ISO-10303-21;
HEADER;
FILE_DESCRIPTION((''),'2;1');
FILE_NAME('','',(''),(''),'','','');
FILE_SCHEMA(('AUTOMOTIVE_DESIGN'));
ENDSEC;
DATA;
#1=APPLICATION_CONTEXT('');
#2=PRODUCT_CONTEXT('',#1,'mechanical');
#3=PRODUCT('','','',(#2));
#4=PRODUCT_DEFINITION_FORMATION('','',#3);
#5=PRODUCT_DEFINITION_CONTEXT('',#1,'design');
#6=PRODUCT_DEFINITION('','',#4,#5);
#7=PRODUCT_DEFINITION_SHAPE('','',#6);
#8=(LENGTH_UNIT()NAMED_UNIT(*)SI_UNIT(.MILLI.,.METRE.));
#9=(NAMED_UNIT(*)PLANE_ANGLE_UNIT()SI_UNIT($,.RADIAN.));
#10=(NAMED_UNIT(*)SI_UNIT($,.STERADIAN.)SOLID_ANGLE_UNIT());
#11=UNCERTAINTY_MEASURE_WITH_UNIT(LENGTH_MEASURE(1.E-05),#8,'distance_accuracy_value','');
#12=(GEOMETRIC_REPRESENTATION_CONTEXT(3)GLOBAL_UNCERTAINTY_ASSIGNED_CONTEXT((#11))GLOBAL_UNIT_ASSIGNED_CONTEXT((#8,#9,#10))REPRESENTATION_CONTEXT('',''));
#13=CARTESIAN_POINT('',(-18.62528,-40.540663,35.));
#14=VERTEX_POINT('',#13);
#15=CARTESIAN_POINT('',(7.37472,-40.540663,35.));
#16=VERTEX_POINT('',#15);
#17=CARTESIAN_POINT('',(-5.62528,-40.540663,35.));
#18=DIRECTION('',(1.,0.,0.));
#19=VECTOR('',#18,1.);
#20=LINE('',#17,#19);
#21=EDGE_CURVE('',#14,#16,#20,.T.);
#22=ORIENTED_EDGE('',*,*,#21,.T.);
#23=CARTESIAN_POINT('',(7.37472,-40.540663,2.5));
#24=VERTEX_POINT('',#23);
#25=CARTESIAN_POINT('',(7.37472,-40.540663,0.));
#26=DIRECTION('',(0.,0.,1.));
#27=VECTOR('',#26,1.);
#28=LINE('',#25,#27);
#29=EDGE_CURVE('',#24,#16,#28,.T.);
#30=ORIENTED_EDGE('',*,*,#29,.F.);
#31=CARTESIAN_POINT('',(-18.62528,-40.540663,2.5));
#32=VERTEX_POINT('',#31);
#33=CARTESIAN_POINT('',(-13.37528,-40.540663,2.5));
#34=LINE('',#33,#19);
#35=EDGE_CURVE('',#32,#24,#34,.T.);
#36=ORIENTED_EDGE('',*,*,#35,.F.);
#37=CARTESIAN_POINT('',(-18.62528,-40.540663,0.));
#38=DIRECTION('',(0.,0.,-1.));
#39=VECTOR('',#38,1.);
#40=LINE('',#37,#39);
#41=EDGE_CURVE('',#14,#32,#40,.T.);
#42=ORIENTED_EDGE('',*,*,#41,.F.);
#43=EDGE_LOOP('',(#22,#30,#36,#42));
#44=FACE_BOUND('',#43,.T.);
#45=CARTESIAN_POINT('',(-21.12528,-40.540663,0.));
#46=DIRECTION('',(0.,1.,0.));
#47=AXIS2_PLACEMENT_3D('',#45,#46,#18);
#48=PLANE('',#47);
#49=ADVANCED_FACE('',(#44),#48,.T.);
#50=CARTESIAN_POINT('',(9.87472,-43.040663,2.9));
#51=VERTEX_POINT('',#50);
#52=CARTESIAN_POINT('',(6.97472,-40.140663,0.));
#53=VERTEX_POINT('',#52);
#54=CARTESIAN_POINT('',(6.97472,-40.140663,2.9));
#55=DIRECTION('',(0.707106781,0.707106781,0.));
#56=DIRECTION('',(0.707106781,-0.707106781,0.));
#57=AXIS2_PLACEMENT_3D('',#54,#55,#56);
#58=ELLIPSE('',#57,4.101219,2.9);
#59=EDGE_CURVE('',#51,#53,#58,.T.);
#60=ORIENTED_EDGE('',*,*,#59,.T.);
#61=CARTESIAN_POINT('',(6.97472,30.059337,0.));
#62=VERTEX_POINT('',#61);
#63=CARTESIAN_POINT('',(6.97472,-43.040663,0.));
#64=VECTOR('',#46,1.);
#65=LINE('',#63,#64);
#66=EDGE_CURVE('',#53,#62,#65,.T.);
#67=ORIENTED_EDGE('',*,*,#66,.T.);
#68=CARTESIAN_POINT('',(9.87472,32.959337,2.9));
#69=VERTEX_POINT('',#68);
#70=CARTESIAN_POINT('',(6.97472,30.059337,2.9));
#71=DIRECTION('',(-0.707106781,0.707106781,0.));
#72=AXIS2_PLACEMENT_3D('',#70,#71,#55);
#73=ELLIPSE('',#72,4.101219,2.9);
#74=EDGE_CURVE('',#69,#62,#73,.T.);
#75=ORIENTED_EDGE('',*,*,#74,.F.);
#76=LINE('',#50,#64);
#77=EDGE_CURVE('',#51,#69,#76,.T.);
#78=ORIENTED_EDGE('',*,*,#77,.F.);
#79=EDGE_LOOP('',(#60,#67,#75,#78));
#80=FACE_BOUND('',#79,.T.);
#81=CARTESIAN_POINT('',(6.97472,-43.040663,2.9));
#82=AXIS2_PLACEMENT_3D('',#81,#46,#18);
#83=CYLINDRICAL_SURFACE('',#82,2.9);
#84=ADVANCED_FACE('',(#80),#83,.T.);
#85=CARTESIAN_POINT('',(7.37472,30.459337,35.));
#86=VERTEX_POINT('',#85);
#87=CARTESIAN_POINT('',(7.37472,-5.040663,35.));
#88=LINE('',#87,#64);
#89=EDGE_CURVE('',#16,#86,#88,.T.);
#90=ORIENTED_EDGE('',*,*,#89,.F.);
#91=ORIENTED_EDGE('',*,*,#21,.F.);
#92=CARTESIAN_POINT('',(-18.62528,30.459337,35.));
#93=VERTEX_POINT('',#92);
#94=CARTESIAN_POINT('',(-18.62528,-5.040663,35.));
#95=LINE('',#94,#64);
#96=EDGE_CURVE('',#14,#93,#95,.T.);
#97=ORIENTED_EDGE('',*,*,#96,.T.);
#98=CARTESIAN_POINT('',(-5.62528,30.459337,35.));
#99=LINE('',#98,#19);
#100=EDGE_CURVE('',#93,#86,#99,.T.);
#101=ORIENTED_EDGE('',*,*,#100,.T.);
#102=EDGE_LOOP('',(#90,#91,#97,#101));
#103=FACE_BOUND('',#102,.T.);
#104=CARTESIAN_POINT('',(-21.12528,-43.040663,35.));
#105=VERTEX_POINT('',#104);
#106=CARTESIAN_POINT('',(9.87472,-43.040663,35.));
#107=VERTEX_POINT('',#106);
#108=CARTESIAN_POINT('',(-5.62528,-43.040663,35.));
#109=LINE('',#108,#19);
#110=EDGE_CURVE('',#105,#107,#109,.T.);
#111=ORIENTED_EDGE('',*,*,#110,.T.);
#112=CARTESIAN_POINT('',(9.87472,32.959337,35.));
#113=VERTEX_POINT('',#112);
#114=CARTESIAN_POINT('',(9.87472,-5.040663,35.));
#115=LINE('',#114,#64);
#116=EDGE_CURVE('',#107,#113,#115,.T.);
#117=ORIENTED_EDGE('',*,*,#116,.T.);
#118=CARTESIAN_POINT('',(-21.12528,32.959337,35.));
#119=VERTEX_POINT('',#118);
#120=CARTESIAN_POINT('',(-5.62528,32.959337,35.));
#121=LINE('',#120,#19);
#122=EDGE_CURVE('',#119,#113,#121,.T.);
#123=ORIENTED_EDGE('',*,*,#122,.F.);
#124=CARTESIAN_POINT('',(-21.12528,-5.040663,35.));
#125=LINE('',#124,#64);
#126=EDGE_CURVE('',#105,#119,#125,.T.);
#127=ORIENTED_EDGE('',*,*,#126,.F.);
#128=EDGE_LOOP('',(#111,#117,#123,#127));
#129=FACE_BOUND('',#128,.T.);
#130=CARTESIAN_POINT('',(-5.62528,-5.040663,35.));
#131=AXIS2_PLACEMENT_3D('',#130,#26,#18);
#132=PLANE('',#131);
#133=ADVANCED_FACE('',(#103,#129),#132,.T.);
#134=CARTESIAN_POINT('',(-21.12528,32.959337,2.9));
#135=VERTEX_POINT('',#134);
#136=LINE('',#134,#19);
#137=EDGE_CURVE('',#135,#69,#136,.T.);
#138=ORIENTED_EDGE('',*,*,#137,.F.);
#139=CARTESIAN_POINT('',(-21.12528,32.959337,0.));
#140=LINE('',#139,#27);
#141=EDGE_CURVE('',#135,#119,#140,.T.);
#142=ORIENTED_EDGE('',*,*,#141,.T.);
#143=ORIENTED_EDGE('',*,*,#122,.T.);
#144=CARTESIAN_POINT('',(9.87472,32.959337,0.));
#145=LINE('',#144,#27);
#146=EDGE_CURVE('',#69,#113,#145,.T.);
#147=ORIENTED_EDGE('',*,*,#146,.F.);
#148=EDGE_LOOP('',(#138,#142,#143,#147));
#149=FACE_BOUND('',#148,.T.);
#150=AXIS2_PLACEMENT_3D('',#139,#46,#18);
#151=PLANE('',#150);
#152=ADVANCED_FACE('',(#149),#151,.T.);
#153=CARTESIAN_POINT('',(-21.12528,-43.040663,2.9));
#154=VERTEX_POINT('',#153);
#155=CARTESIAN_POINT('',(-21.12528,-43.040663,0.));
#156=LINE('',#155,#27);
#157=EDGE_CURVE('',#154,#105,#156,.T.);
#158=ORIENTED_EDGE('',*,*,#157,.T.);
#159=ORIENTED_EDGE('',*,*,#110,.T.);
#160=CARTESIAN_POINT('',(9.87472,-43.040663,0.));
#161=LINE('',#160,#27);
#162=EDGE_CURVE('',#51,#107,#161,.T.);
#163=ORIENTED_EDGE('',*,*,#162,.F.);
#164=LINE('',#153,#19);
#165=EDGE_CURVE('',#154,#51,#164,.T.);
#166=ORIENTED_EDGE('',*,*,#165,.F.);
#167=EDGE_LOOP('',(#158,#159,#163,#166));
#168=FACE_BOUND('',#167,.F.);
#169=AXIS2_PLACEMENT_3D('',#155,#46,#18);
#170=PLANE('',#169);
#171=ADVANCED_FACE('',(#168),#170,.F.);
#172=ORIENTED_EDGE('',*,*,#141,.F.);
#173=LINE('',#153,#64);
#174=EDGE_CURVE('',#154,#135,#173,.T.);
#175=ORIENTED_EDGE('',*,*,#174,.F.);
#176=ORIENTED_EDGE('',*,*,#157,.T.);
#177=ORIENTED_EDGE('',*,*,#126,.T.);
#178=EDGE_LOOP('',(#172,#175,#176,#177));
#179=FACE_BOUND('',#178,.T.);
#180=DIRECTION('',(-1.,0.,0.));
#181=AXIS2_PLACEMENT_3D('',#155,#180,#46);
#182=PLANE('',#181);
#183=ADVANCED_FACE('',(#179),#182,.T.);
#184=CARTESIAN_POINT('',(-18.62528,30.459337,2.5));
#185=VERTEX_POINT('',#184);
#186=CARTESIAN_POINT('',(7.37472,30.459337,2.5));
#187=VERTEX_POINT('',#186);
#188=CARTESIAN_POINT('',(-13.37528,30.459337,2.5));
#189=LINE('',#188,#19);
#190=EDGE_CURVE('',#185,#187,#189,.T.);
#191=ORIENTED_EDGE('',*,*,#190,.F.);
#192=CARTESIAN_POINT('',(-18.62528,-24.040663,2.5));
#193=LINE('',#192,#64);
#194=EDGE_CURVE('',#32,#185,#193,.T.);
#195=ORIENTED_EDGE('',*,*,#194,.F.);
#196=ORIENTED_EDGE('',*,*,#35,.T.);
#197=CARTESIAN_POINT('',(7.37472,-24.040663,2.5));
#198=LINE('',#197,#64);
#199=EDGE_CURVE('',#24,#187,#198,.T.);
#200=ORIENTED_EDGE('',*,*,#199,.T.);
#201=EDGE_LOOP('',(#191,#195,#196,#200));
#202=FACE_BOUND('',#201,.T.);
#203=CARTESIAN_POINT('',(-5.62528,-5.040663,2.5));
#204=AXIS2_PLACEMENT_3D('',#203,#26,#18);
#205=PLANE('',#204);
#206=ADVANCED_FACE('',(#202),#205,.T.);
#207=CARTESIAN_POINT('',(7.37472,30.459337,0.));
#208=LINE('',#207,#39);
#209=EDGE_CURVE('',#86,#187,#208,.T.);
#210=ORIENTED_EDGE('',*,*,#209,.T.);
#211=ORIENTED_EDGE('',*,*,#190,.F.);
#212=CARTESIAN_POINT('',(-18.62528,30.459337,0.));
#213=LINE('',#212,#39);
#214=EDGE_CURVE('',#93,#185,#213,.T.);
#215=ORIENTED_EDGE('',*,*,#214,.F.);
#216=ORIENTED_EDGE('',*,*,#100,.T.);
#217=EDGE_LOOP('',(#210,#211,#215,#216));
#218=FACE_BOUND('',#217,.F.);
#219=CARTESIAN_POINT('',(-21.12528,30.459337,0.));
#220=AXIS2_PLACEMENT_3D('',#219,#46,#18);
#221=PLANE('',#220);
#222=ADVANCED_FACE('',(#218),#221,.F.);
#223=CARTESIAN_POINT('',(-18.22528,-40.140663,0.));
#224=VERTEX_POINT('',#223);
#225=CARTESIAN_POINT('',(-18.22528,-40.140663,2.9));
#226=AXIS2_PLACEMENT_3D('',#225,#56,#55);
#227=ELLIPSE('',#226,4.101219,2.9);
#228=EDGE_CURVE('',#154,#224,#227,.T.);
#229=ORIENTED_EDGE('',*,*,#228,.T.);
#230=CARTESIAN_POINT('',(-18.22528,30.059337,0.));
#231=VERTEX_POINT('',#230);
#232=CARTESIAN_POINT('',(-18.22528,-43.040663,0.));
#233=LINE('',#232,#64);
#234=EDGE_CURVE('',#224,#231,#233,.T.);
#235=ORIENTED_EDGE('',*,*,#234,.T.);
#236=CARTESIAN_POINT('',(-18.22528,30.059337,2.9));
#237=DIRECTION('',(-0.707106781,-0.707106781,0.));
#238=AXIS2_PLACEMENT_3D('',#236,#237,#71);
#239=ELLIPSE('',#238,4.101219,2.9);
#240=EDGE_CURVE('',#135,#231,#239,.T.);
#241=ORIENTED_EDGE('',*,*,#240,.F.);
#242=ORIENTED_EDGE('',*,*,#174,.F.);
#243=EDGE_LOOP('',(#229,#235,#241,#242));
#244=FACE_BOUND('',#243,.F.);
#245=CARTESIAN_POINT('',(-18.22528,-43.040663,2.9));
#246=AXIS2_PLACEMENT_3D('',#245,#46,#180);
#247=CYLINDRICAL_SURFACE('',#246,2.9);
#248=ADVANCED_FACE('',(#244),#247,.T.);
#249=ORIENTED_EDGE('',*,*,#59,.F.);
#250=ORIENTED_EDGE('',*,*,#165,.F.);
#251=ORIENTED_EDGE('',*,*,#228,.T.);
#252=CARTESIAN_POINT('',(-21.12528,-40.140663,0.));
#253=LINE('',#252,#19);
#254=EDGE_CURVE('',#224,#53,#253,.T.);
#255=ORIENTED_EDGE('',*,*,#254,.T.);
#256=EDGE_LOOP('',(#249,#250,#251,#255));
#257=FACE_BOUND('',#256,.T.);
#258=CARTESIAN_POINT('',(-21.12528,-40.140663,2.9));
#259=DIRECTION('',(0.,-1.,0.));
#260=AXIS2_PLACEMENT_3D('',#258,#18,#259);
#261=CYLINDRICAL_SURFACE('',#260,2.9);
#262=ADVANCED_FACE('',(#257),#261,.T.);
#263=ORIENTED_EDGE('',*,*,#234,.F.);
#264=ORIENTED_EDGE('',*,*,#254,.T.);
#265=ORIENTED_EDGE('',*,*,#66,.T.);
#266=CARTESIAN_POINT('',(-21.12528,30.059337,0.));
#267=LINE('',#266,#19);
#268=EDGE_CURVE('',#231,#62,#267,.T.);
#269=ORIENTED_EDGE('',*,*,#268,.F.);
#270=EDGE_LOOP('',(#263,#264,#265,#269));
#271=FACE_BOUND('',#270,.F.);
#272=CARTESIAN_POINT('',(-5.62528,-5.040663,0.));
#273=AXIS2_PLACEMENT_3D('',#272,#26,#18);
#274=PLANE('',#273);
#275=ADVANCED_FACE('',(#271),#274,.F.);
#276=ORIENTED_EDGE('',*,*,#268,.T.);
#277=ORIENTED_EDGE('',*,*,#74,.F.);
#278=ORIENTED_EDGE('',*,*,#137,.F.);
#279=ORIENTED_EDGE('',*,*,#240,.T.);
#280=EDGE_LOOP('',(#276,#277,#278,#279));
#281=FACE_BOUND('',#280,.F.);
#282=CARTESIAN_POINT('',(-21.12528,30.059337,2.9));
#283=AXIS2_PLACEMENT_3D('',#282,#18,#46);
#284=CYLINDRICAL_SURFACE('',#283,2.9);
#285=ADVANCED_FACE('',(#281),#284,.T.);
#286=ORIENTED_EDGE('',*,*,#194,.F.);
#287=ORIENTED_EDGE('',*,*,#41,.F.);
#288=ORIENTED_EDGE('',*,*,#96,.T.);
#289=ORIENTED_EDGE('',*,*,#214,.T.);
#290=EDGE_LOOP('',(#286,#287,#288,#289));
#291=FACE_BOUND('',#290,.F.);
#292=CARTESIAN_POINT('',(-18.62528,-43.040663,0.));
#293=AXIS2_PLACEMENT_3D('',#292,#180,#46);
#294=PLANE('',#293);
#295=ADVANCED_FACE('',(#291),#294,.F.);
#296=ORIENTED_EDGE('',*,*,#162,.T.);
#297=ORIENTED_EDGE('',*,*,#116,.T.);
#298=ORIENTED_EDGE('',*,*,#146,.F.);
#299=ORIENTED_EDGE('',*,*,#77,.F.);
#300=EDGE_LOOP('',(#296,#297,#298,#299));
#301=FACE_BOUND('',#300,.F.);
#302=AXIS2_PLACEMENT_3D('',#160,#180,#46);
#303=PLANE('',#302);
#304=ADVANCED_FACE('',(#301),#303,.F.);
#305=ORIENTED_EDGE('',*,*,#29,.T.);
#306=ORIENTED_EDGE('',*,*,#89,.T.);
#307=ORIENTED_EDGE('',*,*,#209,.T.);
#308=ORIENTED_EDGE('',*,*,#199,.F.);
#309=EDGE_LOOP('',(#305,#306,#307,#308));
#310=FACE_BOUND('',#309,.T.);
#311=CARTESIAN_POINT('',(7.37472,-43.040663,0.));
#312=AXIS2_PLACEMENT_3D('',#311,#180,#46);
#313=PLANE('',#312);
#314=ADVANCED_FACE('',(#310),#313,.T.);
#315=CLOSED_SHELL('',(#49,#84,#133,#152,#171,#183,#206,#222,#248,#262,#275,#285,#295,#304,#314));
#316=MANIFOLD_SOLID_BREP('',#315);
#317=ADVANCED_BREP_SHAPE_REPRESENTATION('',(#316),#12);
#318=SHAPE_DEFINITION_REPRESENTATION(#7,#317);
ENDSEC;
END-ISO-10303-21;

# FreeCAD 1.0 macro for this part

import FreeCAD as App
import Part
import Sketcher


def edges_at(feature, points):
    """Names of the edges that pass closest to the given points."""
    edges = feature.Shape.Edges
    near = lambda p: min(range(len(edges)), key=lambda i: edges[i].distToShape(Part.Vertex(*p))[0])
    return sorted({f"Edge{near(p) + 1}" for p in points})


def faces_at(feature, points):
    """Names of the faces that lie closest to the given points."""
    faces = feature.Shape.Faces
    near = lambda p: min(range(len(faces)), key=lambda i: faces[i].distToShape(Part.Vertex(*p))[0])
    return sorted({f"Face{near(p) + 1}" for p in points})

doc = App.newDocument("Part")
body = doc.addObject("PartDesign::Body", "Body")

sketch1 = body.newObject("Sketcher::SketchObject", "Sketch")
sketch1.AttachmentSupport = (doc.getObject("XY_Plane"), [""])
sketch1.MapMode = "FlatFace"
sketch1.addGeometry(Part.LineSegment(App.Vector(-21, 33, 0), App.Vector(-21, -43, 0)), False)
sketch1.addGeometry(Part.LineSegment(App.Vector(-21, -43, 0), App.Vector(10, -43, 0)), False)
sketch1.addGeometry(Part.LineSegment(App.Vector(10, -43, 0), App.Vector(10, 33, 0)), False)
sketch1.addGeometry(Part.LineSegment(App.Vector(10, 33, 0), App.Vector(-21, 33, 0)), False)
sketch1.addConstraint(Sketcher.Constraint("Coincident", 0, 2, 1, 1))
sketch1.addConstraint(Sketcher.Constraint("Coincident", 1, 2, 2, 1))
sketch1.addConstraint(Sketcher.Constraint("Coincident", 2, 2, 3, 1))
sketch1.addConstraint(Sketcher.Constraint("Coincident", 3, 2, 0, 1))
sketch1.addConstraint(Sketcher.Constraint("Vertical", 0))
sketch1.addConstraint(Sketcher.Constraint("Horizontal", 1))
sketch1.addConstraint(Sketcher.Constraint("Vertical", 2))
sketch1.addConstraint(Sketcher.Constraint("Horizontal", 3))
sketch1.addConstraint(Sketcher.Constraint("DistanceX", 1, 1, 1, 2, 31.0))
sketch1.addConstraint(Sketcher.Constraint("DistanceY", 0, 2, 0, 1, 76.0))
sketch1.addConstraint(Sketcher.Constraint("DistanceX", 0, 2, -1, 1, 21.12528))
sketch1.addConstraint(Sketcher.Constraint("DistanceY", 0, 2, -1, 1, 43.040663))
pad1 = body.newObject("PartDesign::Pad", "Pad")
pad1.Profile = sketch1
pad1.Length = 35
doc.recompute()

thickness = body.newObject("PartDesign::Thickness", "Thickness")
thickness.Base = (pad1, faces_at(pad1, [(-5.625, -5.041, 35)]))
thickness.Value = 2.5
thickness.Reversed = True
thickness.Join = "Arc"
doc.recompute()

fillet = body.newObject("PartDesign::Fillet", "Fillet")
fillet.Base = (thickness, edges_at(thickness, [
    (-5.625, -43.041, 0),
    (9.875, -5.041, 0),
    (-21.125, -5.041, 0),
    (-5.625, 32.959, 0),
]))
fillet.Radius = 2.9

doc.recompute()
